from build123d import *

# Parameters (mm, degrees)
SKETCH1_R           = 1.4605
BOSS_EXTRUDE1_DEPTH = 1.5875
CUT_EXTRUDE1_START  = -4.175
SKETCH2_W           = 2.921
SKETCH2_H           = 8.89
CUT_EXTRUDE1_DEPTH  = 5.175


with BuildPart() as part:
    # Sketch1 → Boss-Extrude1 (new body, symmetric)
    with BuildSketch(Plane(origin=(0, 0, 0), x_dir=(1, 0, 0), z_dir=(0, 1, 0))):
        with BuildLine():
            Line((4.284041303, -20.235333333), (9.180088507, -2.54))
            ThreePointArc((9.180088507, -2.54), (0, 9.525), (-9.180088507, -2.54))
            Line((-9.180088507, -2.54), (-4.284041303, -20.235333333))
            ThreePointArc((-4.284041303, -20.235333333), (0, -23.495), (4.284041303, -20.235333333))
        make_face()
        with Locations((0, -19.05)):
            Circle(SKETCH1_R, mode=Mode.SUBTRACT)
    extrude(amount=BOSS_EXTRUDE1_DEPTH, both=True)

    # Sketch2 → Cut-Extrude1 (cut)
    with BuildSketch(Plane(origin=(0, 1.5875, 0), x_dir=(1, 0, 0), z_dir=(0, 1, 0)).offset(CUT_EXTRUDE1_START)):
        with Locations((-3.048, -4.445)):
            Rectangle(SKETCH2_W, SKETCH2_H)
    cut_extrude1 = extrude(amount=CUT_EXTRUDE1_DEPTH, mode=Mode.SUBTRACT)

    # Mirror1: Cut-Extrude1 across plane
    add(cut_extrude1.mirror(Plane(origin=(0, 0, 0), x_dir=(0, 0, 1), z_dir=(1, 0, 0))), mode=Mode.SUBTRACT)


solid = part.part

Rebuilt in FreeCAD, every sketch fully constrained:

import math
import FreeCAD as App
import Part
import Sketcher
from FreeCAD import Vector
Q = App.Units.Quantity

doc = App.newDocument("Part")
body = doc.addObject("PartDesign::Body", "Body")

sketch1 = body.newObject("Sketcher::SketchObject", "Sketch")
sketch1.AttachmentSupport = (doc.getObject("XZ_Plane"), [""])
sketch1.MapMode = "FlatFace"
sketch1.addGeometry([
    Part.LineSegment(Vector(4.3, 20.2, 0), Vector(9.2, 2.5, 0)),
    Part.ArcOfCircle(Part.Circle(Vector(0, 0, 0), Vector(0, 0, 1), 9.5), math.radians(165), math.radians(375)),
    Part.LineSegment(Vector(-9.2, 2.5, 0), Vector(-4.3, 20.2, 0)),
    Part.ArcOfCircle(Part.Circle(Vector(0, 19.1, 0), Vector(0, 0, 1), 4.4), math.radians(15), math.radians(165)),
    Part.Circle(Vector(0, 19.1, 0), Vector(0, 0, 1), 1.5),
], False)
sketch1.addConstraint([
    Sketcher.Constraint("Tangent", 0, 2, 1, 2),
    Sketcher.Constraint("Tangent", 1, 1, 2, 1),
    Sketcher.Constraint("Tangent", 2, 2, 3, 2),
    Sketcher.Constraint("Tangent", 3, 1, 0, 1),
    Sketcher.Constraint("Coincident", 1, 3, -1, 1),
    Sketcher.Constraint("Coincident", 4, 3, 3, 3),
    Sketcher.Constraint("PointOnObject", 3, 3, -2),
    Sketcher.Constraint("Diameter", 4, Q("0.115 in")),
    Sketcher.Constraint("Radius", 1, Q("0.375 in")),
    Sketcher.Constraint("Radius", 3, Q("0.175 in")),
    Sketcher.Constraint("DistanceY", -1, 1, 0, 2, Q("0.1 in")),
])
pad1 = body.newObject("PartDesign::Pad", "Pad")
pad1.Profile = sketch1
pad1.Length = Q("0.125 in")
pad1.Midplane = True

sketch2 = body.newObject("Sketcher::SketchObject", "Sketch001")
sketch2.AttachmentSupport = (doc.getObject("XZ_Plane"), [""])
sketch2.MapMode = "FlatFace"
sketch2.AttachmentOffset = App.Placement(Vector(0, 0, 2.5875), App.Rotation())
sketch2.addGeometry([
    Part.LineSegment(Vector(-4.5, 0, 0), Vector(-4.5, 8.9, 0)),
    Part.LineSegment(Vector(-4.5, 8.9, 0), Vector(-1.6, 8.9, 0)),
    Part.LineSegment(Vector(-1.6, 8.9, 0), Vector(-1.6, 0, 0)),
    Part.LineSegment(Vector(-1.6, 0, 0), Vector(-4.5, 0, 0)),
], False)
sketch2.addConstraint([
    Sketcher.Constraint("Coincident", 0, 2, 1, 1),
    Sketcher.Constraint("Coincident", 1, 2, 2, 1),
    Sketcher.Constraint("Coincident", 2, 2, 3, 1),
    Sketcher.Constraint("Coincident", 3, 2, 0, 1),
    Sketcher.Constraint("Vertical", 0),
    Sketcher.Constraint("Horizontal", 1),
    Sketcher.Constraint("Vertical", 2),
    Sketcher.Constraint("Horizontal", 3),
    Sketcher.Constraint("PointOnObject", 2, 2, -1),
    Sketcher.Constraint("DistanceY", 0, 1, 0, 2, Q("0.35 in")),
    Sketcher.Constraint("DistanceX", 1, 1, 1, 2, Q("0.115 in")),
    Sketcher.Constraint("DistanceX", 1, 2, -1, 1, Q("0.0625 in")),
])
pocket1 = body.newObject("PartDesign::Pocket", "Pocket")
pocket1.Profile = sketch2
pocket1.Length = 5.175
doc.recompute()

mirrored = body.newObject("PartDesign::Mirrored", "Mirrored")
mirrored.Originals = [pocket1]
mirrored.MirrorPlane = (doc.getObject("YZ_Plane"), [""])
body.Tip = mirrored

doc.recompute()
